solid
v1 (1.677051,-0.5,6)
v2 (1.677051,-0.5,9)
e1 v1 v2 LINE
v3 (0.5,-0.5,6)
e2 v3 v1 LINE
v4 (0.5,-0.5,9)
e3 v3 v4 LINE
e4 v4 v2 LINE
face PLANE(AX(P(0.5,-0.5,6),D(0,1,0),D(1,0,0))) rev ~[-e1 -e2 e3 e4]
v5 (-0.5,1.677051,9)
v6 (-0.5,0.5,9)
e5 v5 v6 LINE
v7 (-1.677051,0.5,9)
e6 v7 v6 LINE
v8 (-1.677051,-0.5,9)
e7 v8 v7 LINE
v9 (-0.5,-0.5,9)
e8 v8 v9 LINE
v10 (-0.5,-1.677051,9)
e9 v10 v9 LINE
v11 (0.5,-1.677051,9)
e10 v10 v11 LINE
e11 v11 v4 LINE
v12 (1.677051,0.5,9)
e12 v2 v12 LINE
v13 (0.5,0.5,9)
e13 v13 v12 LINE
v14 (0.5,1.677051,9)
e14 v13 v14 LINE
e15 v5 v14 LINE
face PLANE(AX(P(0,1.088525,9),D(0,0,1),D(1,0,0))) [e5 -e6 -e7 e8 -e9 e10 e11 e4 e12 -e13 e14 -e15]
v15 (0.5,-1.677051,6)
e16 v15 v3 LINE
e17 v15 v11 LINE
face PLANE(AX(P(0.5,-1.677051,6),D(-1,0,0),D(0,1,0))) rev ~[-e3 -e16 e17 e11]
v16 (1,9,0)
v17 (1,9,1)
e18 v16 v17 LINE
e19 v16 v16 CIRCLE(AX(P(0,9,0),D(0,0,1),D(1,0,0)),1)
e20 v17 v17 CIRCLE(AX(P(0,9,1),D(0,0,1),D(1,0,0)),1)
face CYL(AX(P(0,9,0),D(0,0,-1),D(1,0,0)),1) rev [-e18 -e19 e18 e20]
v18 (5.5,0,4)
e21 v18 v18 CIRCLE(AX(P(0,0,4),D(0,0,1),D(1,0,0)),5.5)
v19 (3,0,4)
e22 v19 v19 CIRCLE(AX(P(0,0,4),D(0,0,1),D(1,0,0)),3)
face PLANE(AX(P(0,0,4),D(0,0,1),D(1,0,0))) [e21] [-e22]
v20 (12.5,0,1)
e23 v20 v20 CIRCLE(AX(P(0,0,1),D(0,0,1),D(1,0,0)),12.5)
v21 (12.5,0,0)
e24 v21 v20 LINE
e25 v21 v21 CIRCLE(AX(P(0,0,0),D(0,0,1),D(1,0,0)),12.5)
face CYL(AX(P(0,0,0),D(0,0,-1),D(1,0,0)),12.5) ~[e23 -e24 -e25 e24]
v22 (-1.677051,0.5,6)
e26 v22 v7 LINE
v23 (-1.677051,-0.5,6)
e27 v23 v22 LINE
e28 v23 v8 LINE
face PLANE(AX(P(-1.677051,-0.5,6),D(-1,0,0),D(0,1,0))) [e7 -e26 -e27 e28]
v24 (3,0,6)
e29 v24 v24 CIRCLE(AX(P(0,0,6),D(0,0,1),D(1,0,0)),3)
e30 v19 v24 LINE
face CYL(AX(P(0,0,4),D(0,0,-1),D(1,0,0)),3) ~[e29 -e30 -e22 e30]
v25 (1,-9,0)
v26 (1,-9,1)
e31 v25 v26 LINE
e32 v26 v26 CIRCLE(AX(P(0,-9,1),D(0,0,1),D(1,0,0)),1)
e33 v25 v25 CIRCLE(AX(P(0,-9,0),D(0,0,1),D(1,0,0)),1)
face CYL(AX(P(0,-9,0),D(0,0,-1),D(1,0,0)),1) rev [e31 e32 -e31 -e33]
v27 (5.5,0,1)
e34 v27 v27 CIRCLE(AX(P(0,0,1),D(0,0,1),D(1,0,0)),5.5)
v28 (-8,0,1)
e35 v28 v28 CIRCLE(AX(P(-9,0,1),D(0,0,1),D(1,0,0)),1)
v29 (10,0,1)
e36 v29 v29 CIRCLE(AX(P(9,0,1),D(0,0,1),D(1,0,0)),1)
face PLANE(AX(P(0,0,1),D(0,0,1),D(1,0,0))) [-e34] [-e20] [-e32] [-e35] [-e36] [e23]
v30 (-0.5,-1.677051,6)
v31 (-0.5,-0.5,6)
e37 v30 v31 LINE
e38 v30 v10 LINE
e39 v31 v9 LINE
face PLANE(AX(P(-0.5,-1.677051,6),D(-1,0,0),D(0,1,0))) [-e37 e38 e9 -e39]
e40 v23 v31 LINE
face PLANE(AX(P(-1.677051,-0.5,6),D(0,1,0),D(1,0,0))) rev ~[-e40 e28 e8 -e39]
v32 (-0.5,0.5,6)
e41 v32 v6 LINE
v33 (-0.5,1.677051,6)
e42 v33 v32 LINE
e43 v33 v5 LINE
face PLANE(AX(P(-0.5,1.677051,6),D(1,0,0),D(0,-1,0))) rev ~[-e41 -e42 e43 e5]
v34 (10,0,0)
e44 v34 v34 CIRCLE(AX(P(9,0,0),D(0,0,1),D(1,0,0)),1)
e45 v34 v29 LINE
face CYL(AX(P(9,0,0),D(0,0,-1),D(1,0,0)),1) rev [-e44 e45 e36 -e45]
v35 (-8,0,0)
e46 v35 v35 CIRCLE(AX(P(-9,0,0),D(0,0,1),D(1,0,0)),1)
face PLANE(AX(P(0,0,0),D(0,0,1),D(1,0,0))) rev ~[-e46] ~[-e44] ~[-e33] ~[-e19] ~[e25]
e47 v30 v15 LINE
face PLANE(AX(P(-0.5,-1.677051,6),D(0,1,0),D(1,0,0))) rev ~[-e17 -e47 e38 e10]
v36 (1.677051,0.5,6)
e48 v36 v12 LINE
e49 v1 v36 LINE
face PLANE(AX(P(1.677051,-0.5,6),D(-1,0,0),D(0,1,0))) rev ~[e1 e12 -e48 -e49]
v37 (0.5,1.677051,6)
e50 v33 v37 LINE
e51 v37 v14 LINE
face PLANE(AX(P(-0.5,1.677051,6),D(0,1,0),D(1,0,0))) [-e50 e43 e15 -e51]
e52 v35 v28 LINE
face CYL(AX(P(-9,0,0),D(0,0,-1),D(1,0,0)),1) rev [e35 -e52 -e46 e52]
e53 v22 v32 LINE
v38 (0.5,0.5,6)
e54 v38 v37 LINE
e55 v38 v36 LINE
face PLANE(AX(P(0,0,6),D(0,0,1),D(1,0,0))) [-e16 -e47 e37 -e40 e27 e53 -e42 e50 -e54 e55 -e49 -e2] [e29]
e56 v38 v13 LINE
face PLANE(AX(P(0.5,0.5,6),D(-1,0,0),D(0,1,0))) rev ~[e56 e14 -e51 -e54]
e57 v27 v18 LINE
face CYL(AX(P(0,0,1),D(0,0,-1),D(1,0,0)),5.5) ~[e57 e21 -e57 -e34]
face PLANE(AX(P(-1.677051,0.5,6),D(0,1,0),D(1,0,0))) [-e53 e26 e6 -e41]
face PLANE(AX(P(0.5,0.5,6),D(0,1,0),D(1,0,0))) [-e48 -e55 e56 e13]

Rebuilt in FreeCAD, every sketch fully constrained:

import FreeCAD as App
import Part
import Sketcher
from FreeCAD import Vector
Q = App.Units.Quantity


def add_polygon(sketch, points):
    """Adds a closed chain of lines whose ends are joined by coincident constraints."""
    first, n = sketch.GeometryCount, len(points)
    for a, b in zip(points, points[1:] + points[:1]):
        sketch.addGeometry(Part.LineSegment(App.Vector(*a, 0), App.Vector(*b, 0)), False)
    for i in range(n):
        sketch.addConstraint(Sketcher.Constraint("Coincident", first + i, 2, first + (i + 1) % n, 1))

doc = App.newDocument("Part")
body = doc.addObject("PartDesign::Body", "Body")

# Sketch on XY plane
sketch1 = body.newObject("Sketcher::SketchObject", "Sketch")
sketch1.AttachmentSupport = (doc.getObject("XY_Plane"), [""])
sketch1.MapMode = "FlatFace"
sketch1.addGeometry([
    Part.Circle(Vector(0, 0, 0), Vector(0, 0, 1), 12.5),  # 0
    Part.Circle(Vector(0, -9, 0), Vector(0, 0, 1), 1),  # 1
    Part.Circle(Vector(-9, 0, 0), Vector(0, 0, 1), 1),  # 2
    Part.Circle(Vector(9, 0, 0), Vector(0, 0, 1), 1),  # 3
    Part.Circle(Vector(0, 9, 0), Vector(0, 0, 1), 1),  # 4
], False)
sketch1.addConstraint([
    Sketcher.Constraint("Coincident", 0, 3, -1, 1),
    Sketcher.Constraint("Equal", 1, 2),
    Sketcher.Constraint("Equal", 2, 3),
    Sketcher.Constraint("Equal", 3, 4),
    Sketcher.Constraint("Symmetric", 2, 3, 3, 3, -1, 1),
    Sketcher.Constraint("Symmetric", 1, 3, 4, 3, -1, 1),
    Sketcher.Constraint("PointOnObject", 1, 3, -2),
    Sketcher.Constraint("PointOnObject", 2, 3, -1),
    Sketcher.Constraint("Diameter", 0, Q("25 mm")),
    Sketcher.Constraint("Diameter", 1, Q("2 mm")),
    Sketcher.Constraint("DistanceY", 1, 3, -1, 1, Q("9 mm")),
    Sketcher.Constraint("DistanceX", 2, 3, -1, 1, Q("9 mm")),
])
pad1 = body.newObject("PartDesign::Pad", "Pad")
pad1.Profile = sketch1
pad1.Length = 1

# Sketch on XY plane
sketch2 = body.newObject("Sketcher::SketchObject", "Sketch001")
sketch2.AttachmentSupport = (doc.getObject("XY_Plane"), [""])
sketch2.MapMode = "FlatFace"
sketch2.AttachmentOffset = App.Placement(Vector(0, 0, 1), App.Rotation())
sketch2.addGeometry(Part.Circle(Vector(0, 0, 0), Vector(0, 0, 1), 6), False)
sketch2.addConstraint([
    Sketcher.Constraint("Coincident", 0, 3, -1, 1),
    Sketcher.Constraint("Diameter", 0, Q("11 mm")),
])
pad2 = body.newObject("PartDesign::Pad", "Pad001")
pad2.Profile = sketch2
pad2.Length = 3

# Sketch on XY plane
sketch3 = body.newObject("Sketcher::SketchObject", "Sketch002")
sketch3.AttachmentSupport = (doc.getObject("XY_Plane"), [""])
sketch3.MapMode = "FlatFace"
sketch3.AttachmentOffset = App.Placement(Vector(0, 0, 4), App.Rotation())
sketch3.addGeometry(Part.Circle(Vector(0, 0, 0), Vector(0, 0, 1), 3), False)
sketch3.addConstraint([
    Sketcher.Constraint("Coincident", 0, 3, -1, 1),
    Sketcher.Constraint("Diameter", 0, Q("6 mm")),
])
pad3 = body.newObject("PartDesign::Pad", "Pad002")
pad3.Profile = sketch3
pad3.Length = 2

# Sketch on XY plane
sketch4 = body.newObject("Sketcher::SketchObject", "Sketch003")
sketch4.AttachmentSupport = (doc.getObject("XY_Plane"), [""])
sketch4.MapMode = "FlatFace"
sketch4.AttachmentOffset = App.Placement(Vector(0, 0, 6), App.Rotation())
add_polygon(sketch4, [(-0.5, 1.7), (-0.5, 0.5), (-1.7, 0.5), (-1.7, -0.5), (-0.5, -0.5), (-0.5, -1.7), (0.5, -1.7), (0.5, -0.5), (1.7, -0.5), (1.7, 0.5), (0.5, 0.5), (0.5, 1.7)])  # lines 0-11
sketch4.addConstraint([
    Sketcher.Constraint("Vertical", 0),
    Sketcher.Constraint("Horizontal", 1),
    Sketcher.Constraint("Vertical", 2),
    Sketcher.Constraint("Horizontal", 3),
    Sketcher.Constraint("Vertical", 4),
    Sketcher.Constraint("Horizontal", 5),
    Sketcher.Constraint("Vertical", 6),
    Sketcher.Constraint("Horizontal", 7),
    Sketcher.Constraint("Vertical", 8),
    Sketcher.Constraint("Horizontal", 9),
    Sketcher.Constraint("Vertical", 10),
    Sketcher.Constraint("Horizontal", 11),
    Sketcher.Constraint("Symmetric", 0, 2, 6, 2, -1, 1),
    Sketcher.Constraint("Symmetric", 2, 2, 8, 2, -1, 1),
    Sketcher.Constraint("Symmetric", 4, 2, 10, 2, -1, 1),
    Sketcher.Constraint("Symmetric", 3, 2, 6, 2, -2),
    Sketcher.Constraint("Equal", 9, 0),
    Sketcher.Constraint("Equal", 11, 2),
    Sketcher.Constraint("DistanceX", 5, 1, 5, 2, Q("1 mm")),
    Sketcher.Constraint("DistanceX", 1, 2, 1, 1, Q("1.177051 mm")),
])
pad4 = body.newObject("PartDesign::Pad", "Pad003")
pad4.Profile = sketch4
pad4.Length = 3

doc.recompute()
